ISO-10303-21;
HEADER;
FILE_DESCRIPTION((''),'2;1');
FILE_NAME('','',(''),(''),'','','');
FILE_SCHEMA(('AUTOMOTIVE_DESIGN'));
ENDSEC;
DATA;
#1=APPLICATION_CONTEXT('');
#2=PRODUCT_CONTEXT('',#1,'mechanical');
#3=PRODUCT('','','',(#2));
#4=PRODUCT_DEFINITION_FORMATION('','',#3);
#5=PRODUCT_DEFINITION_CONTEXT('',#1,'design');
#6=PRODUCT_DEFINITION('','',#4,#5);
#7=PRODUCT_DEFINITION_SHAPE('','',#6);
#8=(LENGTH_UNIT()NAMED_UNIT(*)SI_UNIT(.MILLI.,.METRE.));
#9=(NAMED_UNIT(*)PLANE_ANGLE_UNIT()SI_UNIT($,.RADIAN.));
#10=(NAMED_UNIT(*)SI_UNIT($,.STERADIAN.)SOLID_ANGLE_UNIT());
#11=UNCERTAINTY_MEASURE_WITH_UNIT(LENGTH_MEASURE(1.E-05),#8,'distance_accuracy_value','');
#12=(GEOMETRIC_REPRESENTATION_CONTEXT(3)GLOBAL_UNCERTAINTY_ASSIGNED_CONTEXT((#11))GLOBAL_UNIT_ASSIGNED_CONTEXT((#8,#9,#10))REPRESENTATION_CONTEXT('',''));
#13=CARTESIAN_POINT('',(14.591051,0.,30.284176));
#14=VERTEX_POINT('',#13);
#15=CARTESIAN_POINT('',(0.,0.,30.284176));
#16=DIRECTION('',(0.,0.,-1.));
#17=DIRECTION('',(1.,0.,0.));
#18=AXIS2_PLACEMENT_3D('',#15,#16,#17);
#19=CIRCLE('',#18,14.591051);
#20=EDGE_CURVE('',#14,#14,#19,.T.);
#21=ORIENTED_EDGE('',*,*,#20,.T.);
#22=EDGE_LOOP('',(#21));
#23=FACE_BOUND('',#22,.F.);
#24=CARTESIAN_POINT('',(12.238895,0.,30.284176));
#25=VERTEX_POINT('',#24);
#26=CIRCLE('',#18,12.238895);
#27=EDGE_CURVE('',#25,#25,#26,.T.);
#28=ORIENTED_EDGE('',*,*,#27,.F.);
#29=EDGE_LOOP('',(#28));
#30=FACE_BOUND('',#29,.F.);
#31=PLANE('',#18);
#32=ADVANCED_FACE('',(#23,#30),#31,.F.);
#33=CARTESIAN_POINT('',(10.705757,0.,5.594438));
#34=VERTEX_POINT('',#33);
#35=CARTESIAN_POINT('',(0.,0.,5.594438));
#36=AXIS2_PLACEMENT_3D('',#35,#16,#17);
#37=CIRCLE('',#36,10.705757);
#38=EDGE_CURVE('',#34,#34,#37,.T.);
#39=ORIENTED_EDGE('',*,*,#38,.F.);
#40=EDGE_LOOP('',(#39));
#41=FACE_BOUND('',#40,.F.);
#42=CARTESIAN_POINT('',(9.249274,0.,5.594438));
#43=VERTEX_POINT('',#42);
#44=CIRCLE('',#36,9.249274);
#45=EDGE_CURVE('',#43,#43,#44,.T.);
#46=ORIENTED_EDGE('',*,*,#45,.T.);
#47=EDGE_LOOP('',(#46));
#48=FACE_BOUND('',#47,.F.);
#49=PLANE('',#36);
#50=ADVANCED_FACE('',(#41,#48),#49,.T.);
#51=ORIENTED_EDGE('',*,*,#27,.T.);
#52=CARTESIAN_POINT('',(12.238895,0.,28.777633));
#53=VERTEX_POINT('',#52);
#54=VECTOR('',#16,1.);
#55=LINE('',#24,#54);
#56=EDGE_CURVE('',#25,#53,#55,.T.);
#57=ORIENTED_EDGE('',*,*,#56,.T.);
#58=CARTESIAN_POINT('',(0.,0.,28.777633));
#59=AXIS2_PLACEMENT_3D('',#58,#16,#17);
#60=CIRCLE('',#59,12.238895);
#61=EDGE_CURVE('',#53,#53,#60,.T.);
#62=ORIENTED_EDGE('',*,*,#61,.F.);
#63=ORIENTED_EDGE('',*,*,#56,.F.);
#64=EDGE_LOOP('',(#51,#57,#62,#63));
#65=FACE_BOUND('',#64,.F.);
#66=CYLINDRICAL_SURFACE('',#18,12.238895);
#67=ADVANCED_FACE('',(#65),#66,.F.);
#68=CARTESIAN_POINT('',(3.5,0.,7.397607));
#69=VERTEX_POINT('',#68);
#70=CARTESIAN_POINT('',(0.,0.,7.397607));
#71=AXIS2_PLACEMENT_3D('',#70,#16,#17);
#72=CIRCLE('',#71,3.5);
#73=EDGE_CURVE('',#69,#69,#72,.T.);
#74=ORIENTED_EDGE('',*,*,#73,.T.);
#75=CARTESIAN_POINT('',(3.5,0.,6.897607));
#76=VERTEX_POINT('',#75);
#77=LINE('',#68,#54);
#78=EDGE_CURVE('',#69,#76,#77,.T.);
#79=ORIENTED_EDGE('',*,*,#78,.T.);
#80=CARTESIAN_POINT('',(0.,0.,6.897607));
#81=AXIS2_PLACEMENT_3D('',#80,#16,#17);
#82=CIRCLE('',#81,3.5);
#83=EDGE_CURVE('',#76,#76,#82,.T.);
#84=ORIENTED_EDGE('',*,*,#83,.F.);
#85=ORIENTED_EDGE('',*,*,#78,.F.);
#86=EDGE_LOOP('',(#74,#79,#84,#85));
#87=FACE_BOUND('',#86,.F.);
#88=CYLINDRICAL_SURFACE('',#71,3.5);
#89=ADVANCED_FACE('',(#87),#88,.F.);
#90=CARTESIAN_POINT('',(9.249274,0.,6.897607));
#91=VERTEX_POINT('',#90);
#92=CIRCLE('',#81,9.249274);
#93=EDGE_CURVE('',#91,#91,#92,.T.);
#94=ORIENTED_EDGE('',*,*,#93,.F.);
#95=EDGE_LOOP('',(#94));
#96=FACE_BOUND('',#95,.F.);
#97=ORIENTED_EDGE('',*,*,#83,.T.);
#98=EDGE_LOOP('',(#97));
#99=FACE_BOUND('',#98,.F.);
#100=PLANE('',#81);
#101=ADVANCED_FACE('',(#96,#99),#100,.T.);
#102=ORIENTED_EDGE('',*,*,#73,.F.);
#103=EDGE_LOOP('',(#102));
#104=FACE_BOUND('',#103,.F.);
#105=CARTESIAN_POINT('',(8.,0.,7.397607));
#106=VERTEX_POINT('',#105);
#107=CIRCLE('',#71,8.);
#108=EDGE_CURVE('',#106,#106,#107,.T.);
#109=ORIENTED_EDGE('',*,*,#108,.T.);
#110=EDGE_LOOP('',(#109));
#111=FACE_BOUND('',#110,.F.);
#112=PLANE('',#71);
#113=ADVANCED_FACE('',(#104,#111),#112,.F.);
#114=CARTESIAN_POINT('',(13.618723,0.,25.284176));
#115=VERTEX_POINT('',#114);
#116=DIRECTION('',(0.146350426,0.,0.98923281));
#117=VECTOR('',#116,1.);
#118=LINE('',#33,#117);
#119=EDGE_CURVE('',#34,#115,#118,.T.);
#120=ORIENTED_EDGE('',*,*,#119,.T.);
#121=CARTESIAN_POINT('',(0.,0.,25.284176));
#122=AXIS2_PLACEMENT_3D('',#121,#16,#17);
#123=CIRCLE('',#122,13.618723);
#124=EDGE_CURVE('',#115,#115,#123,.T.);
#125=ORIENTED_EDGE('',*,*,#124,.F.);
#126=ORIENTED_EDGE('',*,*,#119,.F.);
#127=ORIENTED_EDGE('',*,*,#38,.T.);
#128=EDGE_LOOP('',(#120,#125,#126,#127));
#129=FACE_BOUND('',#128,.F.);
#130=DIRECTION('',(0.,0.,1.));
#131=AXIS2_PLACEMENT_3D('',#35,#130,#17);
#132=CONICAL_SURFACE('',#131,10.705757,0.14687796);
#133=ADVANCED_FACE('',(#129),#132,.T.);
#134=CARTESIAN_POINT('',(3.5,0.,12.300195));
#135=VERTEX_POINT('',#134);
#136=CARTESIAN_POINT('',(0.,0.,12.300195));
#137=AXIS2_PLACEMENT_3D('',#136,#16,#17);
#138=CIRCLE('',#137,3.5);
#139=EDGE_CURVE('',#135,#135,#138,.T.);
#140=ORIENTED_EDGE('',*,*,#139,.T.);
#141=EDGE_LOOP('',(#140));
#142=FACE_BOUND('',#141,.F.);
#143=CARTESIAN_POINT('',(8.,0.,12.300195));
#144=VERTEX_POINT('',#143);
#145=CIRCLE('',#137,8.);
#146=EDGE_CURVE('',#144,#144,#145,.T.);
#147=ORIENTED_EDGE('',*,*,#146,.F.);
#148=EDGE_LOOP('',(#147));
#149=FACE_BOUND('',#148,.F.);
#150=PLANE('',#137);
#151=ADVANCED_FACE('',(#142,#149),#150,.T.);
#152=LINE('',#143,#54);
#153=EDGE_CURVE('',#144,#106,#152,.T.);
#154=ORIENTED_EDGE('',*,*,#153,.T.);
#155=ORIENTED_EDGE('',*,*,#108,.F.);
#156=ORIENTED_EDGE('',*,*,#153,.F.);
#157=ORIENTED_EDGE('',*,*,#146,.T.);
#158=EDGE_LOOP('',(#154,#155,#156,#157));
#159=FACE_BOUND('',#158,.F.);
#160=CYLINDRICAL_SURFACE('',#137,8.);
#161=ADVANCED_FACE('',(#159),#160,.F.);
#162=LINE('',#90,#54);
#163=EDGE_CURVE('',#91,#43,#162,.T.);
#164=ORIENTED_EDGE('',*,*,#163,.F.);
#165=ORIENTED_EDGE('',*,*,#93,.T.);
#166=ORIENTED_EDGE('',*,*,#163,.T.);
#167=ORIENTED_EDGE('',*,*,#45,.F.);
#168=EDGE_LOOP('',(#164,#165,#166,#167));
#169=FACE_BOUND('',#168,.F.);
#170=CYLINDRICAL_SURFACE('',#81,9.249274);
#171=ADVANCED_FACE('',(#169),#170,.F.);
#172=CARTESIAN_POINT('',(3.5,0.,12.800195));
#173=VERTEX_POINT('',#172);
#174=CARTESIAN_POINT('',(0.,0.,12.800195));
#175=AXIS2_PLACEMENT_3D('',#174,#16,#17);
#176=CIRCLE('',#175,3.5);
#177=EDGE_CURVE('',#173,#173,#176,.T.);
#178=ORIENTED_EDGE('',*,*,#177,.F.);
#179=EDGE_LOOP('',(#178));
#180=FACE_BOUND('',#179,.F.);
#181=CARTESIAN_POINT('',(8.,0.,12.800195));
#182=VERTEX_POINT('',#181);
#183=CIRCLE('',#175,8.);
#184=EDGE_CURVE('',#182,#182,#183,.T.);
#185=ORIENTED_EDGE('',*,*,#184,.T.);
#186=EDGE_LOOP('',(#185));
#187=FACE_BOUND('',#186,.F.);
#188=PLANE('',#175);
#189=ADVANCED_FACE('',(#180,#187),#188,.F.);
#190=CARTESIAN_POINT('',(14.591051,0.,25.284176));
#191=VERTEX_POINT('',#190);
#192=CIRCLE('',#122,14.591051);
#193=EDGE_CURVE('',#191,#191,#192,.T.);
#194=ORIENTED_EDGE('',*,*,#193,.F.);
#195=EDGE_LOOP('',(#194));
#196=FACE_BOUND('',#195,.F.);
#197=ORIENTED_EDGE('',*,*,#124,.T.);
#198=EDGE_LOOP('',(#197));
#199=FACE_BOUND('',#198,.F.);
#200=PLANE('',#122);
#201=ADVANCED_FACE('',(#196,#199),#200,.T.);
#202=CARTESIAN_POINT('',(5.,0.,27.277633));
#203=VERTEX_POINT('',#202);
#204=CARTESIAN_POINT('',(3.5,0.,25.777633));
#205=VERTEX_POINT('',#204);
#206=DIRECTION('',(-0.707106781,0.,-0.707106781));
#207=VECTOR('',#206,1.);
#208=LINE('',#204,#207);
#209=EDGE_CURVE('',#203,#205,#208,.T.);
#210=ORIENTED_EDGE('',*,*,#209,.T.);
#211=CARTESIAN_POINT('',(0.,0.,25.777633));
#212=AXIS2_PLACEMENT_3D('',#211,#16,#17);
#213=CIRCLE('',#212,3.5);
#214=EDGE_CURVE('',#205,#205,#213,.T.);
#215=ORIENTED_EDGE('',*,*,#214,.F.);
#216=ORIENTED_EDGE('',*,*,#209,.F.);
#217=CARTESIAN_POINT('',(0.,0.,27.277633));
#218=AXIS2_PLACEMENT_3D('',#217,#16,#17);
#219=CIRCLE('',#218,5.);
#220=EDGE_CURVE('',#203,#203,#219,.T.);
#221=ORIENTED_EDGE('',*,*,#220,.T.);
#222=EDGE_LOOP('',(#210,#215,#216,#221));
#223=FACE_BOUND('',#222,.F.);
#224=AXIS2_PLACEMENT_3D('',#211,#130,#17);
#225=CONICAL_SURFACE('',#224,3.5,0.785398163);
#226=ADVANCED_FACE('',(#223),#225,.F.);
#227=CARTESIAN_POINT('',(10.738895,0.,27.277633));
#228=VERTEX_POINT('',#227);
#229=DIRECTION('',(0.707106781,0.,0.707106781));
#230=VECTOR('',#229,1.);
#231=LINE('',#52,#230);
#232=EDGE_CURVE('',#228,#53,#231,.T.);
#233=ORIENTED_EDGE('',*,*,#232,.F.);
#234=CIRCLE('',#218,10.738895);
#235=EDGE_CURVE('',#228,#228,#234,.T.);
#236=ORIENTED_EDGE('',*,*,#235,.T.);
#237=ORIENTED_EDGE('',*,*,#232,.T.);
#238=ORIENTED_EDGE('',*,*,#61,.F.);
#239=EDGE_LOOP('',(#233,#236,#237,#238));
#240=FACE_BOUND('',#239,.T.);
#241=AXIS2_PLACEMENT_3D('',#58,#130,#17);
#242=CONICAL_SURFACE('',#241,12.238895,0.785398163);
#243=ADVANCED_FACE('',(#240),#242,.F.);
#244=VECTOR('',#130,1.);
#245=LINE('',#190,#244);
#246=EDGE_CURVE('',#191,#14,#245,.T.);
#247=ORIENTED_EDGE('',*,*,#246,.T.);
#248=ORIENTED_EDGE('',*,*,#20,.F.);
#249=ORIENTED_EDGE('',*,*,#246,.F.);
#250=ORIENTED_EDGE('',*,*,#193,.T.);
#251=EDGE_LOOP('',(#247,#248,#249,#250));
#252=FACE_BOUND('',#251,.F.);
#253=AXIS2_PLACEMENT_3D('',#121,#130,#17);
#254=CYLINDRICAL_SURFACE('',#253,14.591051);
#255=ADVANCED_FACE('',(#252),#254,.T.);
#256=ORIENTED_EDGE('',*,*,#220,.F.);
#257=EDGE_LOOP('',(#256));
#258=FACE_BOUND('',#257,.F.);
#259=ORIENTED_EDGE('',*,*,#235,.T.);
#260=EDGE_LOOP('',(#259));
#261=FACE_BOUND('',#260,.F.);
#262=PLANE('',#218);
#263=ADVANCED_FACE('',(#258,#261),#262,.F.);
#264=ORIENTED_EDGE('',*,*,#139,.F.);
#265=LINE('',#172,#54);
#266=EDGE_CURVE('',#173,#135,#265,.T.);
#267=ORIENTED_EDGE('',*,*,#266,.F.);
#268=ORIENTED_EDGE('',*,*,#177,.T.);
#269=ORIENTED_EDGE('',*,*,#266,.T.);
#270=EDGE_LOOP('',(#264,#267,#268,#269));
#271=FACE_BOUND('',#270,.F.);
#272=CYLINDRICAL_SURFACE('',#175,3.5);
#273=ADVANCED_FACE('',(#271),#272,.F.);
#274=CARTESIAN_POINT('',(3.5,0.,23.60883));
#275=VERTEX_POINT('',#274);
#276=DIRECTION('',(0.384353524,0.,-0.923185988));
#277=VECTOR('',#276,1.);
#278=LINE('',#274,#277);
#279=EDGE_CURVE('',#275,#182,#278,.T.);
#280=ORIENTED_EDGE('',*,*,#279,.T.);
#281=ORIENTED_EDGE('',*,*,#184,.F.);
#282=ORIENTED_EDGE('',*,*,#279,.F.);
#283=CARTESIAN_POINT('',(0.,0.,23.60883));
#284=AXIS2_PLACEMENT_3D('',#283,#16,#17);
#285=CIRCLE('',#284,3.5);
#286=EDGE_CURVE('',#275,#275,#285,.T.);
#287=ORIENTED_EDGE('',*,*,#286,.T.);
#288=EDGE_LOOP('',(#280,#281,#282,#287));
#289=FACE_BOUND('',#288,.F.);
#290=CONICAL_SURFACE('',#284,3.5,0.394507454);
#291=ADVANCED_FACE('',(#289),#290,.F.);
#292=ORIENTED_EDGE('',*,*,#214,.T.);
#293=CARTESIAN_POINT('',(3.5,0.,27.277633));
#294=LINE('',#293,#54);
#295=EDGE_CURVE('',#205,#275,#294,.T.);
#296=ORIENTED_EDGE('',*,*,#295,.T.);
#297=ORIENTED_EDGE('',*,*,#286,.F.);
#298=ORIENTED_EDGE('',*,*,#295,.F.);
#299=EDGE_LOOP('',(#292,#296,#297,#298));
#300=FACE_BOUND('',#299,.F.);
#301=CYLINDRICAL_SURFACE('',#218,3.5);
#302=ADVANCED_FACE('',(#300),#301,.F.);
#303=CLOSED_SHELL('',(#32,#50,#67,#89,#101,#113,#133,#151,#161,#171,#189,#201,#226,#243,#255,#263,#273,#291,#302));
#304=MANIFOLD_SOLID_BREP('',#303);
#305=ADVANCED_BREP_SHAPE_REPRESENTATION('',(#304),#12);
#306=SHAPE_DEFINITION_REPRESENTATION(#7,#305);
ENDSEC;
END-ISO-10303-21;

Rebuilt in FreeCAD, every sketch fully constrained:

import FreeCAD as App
import Part
import Sketcher
from FreeCAD import Vector


def edges_at(feature, points):
    """Names of the edges that pass closest to the given points."""
    edges = feature.Shape.Edges
    near = lambda p: min(range(len(edges)), key=lambda i: edges[i].distToShape(Part.Vertex(*p))[0])
    return sorted({f"Edge{near(p) + 1}" for p in points})

doc = App.newDocument("Part")
body = doc.addObject("PartDesign::Body", "Body")

sketch1 = body.newObject("Sketcher::SketchObject", "Sketch")
sketch1.AttachmentSupport = (doc.getObject("XZ_Plane"), [""])
sketch1.MapMode = "FlatFace"
sketch1.addGeometry(Part.LineSegment(Vector(12.2, 27.3, 0), Vector(3.5, 27.3, 0)), False)
sketch1.addGeometry(Part.LineSegment(Vector(3.5, 27.3, 0), Vector(3.5, 23.6, 0)), False)
sketch1.addGeometry(Part.LineSegment(Vector(3.5, 23.6, 0), Vector(8, 12.8, 0)), False)
sketch1.addGeometry(Part.LineSegment(Vector(8, 12.8, 0), Vector(3.5, 12.8, 0)), False)
sketch1.addGeometry(Part.LineSegment(Vector(3.5, 12.8, 0), Vector(3.5, 12.3, 0)), False)
sketch1.addGeometry(Part.LineSegment(Vector(3.5, 12.3, 0), Vector(8, 12.3, 0)), False)
sketch1.addGeometry(Part.LineSegment(Vector(8, 12.3, 0), Vector(8, 7.4, 0)), False)
sketch1.addGeometry(Part.LineSegment(Vector(8, 7.4, 0), Vector(3.5, 7.4, 0)), False)
sketch1.addGeometry(Part.LineSegment(Vector(3.5, 7.4, 0), Vector(3.5, 6.9, 0)), False)
sketch1.addGeometry(Part.LineSegment(Vector(3.5, 6.9, 0), Vector(9.2, 6.9, 0)), False)
sketch1.addGeometry(Part.LineSegment(Vector(9.2, 6.9, 0), Vector(9.2, 5.6, 0)), False)
sketch1.addGeometry(Part.LineSegment(Vector(9.2, 5.6, 0), Vector(10.7, 5.6, 0)), False)
sketch1.addGeometry(Part.LineSegment(Vector(10.7, 5.6, 0), Vector(13.6, 25.3, 0)), False)
sketch1.addGeometry(Part.LineSegment(Vector(13.6, 25.3, 0), Vector(14.6, 25.3, 0)), False)
sketch1.addGeometry(Part.LineSegment(Vector(14.6, 25.3, 0), Vector(14.6, 30.3, 0)), False)
sketch1.addGeometry(Part.LineSegment(Vector(14.6, 30.3, 0), Vector(12.2, 30.3, 0)), False)
sketch1.addGeometry(Part.LineSegment(Vector(12.2, 30.3, 0), Vector(12.2, 27.3, 0)), False)
sketch1.addConstraint(Sketcher.Constraint("Coincident", 0, 2, 1, 1))
sketch1.addConstraint(Sketcher.Constraint("Coincident", 1, 2, 2, 1))
sketch1.addConstraint(Sketcher.Constraint("Coincident", 2, 2, 3, 1))
sketch1.addConstraint(Sketcher.Constraint("Coincident", 3, 2, 4, 1))
sketch1.addConstraint(Sketcher.Constraint("Coincident", 4, 2, 5, 1))
sketch1.addConstraint(Sketcher.Constraint("Coincident", 5, 2, 6, 1))
sketch1.addConstraint(Sketcher.Constraint("Coincident", 6, 2, 7, 1))
sketch1.addConstraint(Sketcher.Constraint("Coincident", 7, 2, 8, 1))
sketch1.addConstraint(Sketcher.Constraint("Coincident", 8, 2, 9, 1))
sketch1.addConstraint(Sketcher.Constraint("Coincident", 9, 2, 10, 1))
sketch1.addConstraint(Sketcher.Constraint("Coincident", 10, 2, 11, 1))
sketch1.addConstraint(Sketcher.Constraint("Coincident", 11, 2, 12, 1))
sketch1.addConstraint(Sketcher.Constraint("Coincident", 12, 2, 13, 1))
sketch1.addConstraint(Sketcher.Constraint("Coincident", 13, 2, 14, 1))
sketch1.addConstraint(Sketcher.Constraint("Coincident", 14, 2, 15, 1))
sketch1.addConstraint(Sketcher.Constraint("Coincident", 15, 2, 16, 1))
sketch1.addConstraint(Sketcher.Constraint("Coincident", 16, 2, 0, 1))
sketch1.addConstraint(Sketcher.Constraint("Horizontal", 0))
sketch1.addConstraint(Sketcher.Constraint("Vertical", 1))
sketch1.addConstraint(Sketcher.Constraint("Horizontal", 3))
sketch1.addConstraint(Sketcher.Constraint("Vertical", 4))
sketch1.addConstraint(Sketcher.Constraint("Horizontal", 5))
sketch1.addConstraint(Sketcher.Constraint("Vertical", 6))
sketch1.addConstraint(Sketcher.Constraint("Horizontal", 7))
sketch1.addConstraint(Sketcher.Constraint("Vertical", 8))
sketch1.addConstraint(Sketcher.Constraint("Horizontal", 9))
sketch1.addConstraint(Sketcher.Constraint("Vertical", 10))
sketch1.addConstraint(Sketcher.Constraint("Horizontal", 11))
sketch1.addConstraint(Sketcher.Constraint("Horizontal", 13))
sketch1.addConstraint(Sketcher.Constraint("Vertical", 14))
sketch1.addConstraint(Sketcher.Constraint("Horizontal", 15))
sketch1.addConstraint(Sketcher.Constraint("Vertical", 16))
sketch1.addConstraint(Sketcher.Constraint("Vertical", 1, 2, 3, 2))
sketch1.addConstraint(Sketcher.Constraint("Vertical", 2, 2, 5, 2))
sketch1.addConstraint(Sketcher.Constraint("Vertical", 4, 2, 7, 2))
sketch1.addConstraint(Sketcher.Constraint("Equal", 4, 8))
sketch1.addConstraint(Sketcher.Constraint("DistanceY", 14, 1, 14, 2, 5.0))
sketch1.addConstraint(Sketcher.Constraint("DistanceX", 3, 2, 3, 1, 4.5))
sketch1.addConstraint(Sketcher.Constraint("DistanceY", 4, 2, 4, 1, 0.5))
sketch1.addConstraint(Sketcher.Constraint("DistanceX", -1, 1, 2, 2, 8.0))
sketch1.addConstraint(Sketcher.Constraint("DistanceX", 13, 1, 13, 2, 0.972328))
sketch1.addConstraint(Sketcher.Constraint("DistanceY", 6, 2, 6, 1, 4.902588))
sketch1.addConstraint(Sketcher.Constraint("DistanceY", 10, 2, 10, 1, 1.303169))
sketch1.addConstraint(Sketcher.Constraint("Distance", 2, 11.707971))
sketch1.addConstraint(Sketcher.Constraint("Distance", 12, 19.904049))
sketch1.addConstraint(Sketcher.Constraint("DistanceX", 0, 2, 0, 1, 8.738895))
sketch1.addConstraint(Sketcher.Constraint("DistanceX", 9, 1, 9, 2, 5.749274))
sketch1.addConstraint(Sketcher.Constraint("DistanceX", 11, 1, 11, 2, 1.456483))
sketch1.addConstraint(Sketcher.Constraint("DistanceX", 15, 2, 15, 1, 2.352156))
sketch1.addConstraint(Sketcher.Constraint("DistanceY", 1, 2, 1, 1, 3.668803))
sketch1.addConstraint(Sketcher.Constraint("DistanceY", -1, 1, 1, 2, 23.60883))
revolution = body.newObject("PartDesign::Revolution", "Revolution")
revolution.Profile = sketch1
revolution.ReferenceAxis = (sketch1, ["V_Axis"])
revolution.Angle = 360
doc.recompute()

chamfer = body.newObject("PartDesign::Chamfer", "Chamfer")
chamfer.Base = (revolution, edges_at(revolution, [(-3.5, 0, 27.278), (-12.239, 0, 27.278)]))
chamfer.Size = 1.5

doc.recompute()
